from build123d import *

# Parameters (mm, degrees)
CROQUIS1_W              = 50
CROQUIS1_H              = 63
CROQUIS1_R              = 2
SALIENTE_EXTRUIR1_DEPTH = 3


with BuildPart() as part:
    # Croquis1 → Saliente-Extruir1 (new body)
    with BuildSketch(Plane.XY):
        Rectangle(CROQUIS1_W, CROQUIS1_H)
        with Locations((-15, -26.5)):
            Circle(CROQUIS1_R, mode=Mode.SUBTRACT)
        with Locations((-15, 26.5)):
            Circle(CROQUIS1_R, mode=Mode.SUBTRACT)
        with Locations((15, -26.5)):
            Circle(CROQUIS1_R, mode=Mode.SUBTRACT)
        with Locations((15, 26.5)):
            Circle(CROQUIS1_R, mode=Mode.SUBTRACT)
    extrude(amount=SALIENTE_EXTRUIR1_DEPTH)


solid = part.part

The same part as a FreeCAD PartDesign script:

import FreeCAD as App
import Part
import Sketcher
from FreeCAD import Vector


def add_polygon(sketch, points):
    """Adds a closed chain of lines whose ends are joined by coincident constraints."""
    first, n = sketch.GeometryCount, len(points)
    for a, b in zip(points, points[1:] + points[:1]):
        sketch.addGeometry(Part.LineSegment(App.Vector(*a, 0), App.Vector(*b, 0)), False)
    for i in range(n):
        sketch.addConstraint(Sketcher.Constraint("Coincident", first + i, 2, first + (i + 1) % n, 1))

doc = App.newDocument("Part")
body = doc.addObject("PartDesign::Body", "Body")

# Sketch on XY plane
sketch1 = body.newObject("Sketcher::SketchObject", "Sketch")
sketch1.AttachmentSupport = (doc.getObject("XY_Plane"), [""])
sketch1.MapMode = "FlatFace"
add_polygon(sketch1, [(-25, 31.5), (-25, -31.5), (25, -31.5), (25, 31.5)])  # lines 0-3
sketch1.addGeometry(Part.Circle(Vector(-15, -26.5, 0), Vector(0, 0, 1), 2), False)  # 4
sketch1.addGeometry(Part.Circle(Vector(15, -26.5, 0), Vector(0, 0, 1), 2), False)  # 5
sketch1.addGeometry(Part.Circle(Vector(-15, 26.5, 0), Vector(0, 0, 1), 2), False)  # 6
sketch1.addGeometry(Part.Circle(Vector(15, 26.5, 0), Vector(0, 0, 1), 2), False)  # 7
sketch1.addConstraint([
    Sketcher.Constraint("Vertical", 0),
    Sketcher.Constraint("Horizontal", 1),
    Sketcher.Constraint("Vertical", 2),
    Sketcher.Constraint("Horizontal", 3),
    Sketcher.Constraint("Equal", 4, 5),
    Sketcher.Constraint("Equal", 5, 6),
    Sketcher.Constraint("Equal", 6, 7),
    Sketcher.Constraint("Symmetric", 5, 3, 6, 3, -1, 1),
    Sketcher.Constraint("Symmetric", 4, 3, 7, 3, -1, 1),
    Sketcher.Constraint("Symmetric", 0, 2, 2, 2, -1, 1),
    Sketcher.Constraint("Symmetric", 4, 3, 5, 3, -2),
    Sketcher.Constraint("Diameter", 4, 4.0),
    Sketcher.Constraint("DistanceX", 1, 1, 1, 2, 50.0),
    Sketcher.Constraint("DistanceY", 0, 2, 0, 1, 63.0),
    Sketcher.Constraint("DistanceX", 4, 3, -1, 1, 15.0),
    Sketcher.Constraint("DistanceY", 4, 3, 6, 3, 53.0),
])
pad1 = body.newObject("PartDesign::Pad", "Pad")
pad1.Profile = sketch1
pad1.Length = 3

doc.recompute()
